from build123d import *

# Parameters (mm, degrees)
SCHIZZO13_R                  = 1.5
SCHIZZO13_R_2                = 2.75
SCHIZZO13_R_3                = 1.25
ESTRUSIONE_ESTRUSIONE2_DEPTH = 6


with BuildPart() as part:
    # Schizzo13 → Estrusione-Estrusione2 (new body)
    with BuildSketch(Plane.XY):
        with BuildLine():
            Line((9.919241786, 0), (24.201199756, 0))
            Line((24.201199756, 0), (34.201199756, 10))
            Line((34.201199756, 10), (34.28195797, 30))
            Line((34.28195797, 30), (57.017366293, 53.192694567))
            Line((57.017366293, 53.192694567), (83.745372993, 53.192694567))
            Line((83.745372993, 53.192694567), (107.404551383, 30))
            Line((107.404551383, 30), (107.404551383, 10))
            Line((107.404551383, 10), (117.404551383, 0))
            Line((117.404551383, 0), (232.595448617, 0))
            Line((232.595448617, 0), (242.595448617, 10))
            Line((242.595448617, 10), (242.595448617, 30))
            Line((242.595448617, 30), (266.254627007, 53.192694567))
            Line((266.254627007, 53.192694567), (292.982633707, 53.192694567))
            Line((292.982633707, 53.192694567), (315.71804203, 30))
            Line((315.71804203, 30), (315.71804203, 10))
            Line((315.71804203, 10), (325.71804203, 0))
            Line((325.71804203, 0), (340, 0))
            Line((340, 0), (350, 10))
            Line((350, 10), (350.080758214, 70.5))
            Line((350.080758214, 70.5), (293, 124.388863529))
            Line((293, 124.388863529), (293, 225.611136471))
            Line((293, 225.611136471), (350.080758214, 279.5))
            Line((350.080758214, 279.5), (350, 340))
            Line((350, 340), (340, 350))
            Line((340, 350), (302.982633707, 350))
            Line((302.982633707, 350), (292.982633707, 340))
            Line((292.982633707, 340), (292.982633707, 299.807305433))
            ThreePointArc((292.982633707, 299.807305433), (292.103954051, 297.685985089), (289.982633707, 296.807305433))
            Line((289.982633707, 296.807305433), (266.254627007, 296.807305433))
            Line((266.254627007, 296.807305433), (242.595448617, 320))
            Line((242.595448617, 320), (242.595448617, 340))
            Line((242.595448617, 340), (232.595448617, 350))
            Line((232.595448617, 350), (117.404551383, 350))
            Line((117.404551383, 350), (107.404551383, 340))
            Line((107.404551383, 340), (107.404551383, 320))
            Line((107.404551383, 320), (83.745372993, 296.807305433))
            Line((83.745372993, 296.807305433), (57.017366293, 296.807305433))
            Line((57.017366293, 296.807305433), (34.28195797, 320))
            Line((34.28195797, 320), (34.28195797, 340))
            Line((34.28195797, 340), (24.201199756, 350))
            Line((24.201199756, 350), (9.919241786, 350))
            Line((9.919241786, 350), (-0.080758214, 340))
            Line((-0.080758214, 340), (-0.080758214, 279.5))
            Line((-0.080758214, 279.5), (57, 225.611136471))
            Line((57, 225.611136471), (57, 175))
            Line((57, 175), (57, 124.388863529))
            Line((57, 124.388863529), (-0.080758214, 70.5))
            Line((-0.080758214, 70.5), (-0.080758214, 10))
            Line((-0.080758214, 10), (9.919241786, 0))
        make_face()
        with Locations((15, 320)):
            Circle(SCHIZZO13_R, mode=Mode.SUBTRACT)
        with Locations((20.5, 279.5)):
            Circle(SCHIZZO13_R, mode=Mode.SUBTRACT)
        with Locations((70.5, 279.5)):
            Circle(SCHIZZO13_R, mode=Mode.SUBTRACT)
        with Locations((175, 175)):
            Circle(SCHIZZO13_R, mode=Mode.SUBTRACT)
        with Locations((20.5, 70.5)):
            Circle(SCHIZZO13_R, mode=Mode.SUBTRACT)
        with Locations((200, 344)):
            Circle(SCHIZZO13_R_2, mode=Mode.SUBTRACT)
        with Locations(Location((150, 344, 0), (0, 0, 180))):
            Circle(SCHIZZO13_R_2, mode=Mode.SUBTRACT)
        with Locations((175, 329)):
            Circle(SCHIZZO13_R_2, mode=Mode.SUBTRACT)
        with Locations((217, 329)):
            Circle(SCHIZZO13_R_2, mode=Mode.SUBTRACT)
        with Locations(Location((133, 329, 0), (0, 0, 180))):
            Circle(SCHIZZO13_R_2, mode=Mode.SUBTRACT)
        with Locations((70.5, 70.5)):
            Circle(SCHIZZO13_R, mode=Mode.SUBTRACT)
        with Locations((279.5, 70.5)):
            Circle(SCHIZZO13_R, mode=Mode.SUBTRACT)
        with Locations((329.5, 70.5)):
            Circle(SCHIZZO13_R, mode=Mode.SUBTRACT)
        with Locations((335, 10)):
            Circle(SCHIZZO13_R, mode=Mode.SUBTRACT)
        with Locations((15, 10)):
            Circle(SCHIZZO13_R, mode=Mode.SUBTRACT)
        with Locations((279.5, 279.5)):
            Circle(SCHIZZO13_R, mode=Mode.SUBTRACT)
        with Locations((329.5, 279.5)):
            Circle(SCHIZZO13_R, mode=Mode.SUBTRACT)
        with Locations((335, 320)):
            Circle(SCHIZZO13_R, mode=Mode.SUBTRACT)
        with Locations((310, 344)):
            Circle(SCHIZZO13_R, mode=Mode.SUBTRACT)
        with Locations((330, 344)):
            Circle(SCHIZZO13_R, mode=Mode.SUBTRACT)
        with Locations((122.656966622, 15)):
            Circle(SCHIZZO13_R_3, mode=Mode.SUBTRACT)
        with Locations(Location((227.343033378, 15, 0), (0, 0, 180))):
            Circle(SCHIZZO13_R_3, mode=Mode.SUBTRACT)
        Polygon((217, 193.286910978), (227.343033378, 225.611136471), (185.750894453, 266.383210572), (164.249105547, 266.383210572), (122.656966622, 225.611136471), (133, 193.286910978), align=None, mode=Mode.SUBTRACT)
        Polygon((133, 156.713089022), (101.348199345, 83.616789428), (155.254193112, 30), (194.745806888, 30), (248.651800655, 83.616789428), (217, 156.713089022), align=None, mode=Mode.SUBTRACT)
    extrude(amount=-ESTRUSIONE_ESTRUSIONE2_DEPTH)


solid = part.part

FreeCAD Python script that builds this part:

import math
import FreeCAD as App
import Part
import Sketcher

V = App.Vector
Q = App.Units.Quantity

doc = App.newDocument("Part")
body = doc.addObject("PartDesign::Body", "Body")

sketch1 = body.newObject("Sketcher::SketchObject", "Sketch")
sketch1.AttachmentSupport = (doc.getObject("XY_Plane"), [""])
sketch1.MapMode = "FlatFace"
sketch1.addGeometry(Part.LineSegment(V(9.919242, 0, 0), V(24.2012, 0, 0)), False)
sketch1.addGeometry(Part.LineSegment(V(24.2012, 0, 0), V(34.2012, 10, 0)), False)
sketch1.addGeometry(Part.LineSegment(V(34.2012, 10, 0), V(34.281958, 30, 0)), False)
sketch1.addGeometry(Part.LineSegment(V(34.281958, 30, 0), V(57.017366, 53.192695, 0)), False)
sketch1.addGeometry(Part.LineSegment(V(57.017366, 53.192695, 0), V(83.745373, 53.192695, 0)), False)
sketch1.addGeometry(Part.LineSegment(V(83.745373, 53.192695, 0), V(107.404551, 30, 0)), False)
sketch1.addGeometry(Part.LineSegment(V(107.404551, 30, 0), V(107.404551, 10, 0)), False)
sketch1.addGeometry(Part.LineSegment(V(107.404551, 10, 0), V(117.404551, 0, 0)), False)
sketch1.addGeometry(Part.LineSegment(V(117.404551, 0, 0), V(232.595449, 0, 0)), False)
sketch1.addGeometry(Part.LineSegment(V(232.595449, 0, 0), V(242.595449, 10, 0)), False)
sketch1.addGeometry(Part.LineSegment(V(242.595449, 10, 0), V(242.595449, 30, 0)), False)
sketch1.addGeometry(Part.LineSegment(V(242.595449, 30, 0), V(266.254627, 53.192695, 0)), False)
sketch1.addGeometry(Part.LineSegment(V(266.254627, 53.192695, 0), V(292.982634, 53.192695, 0)), False)
sketch1.addGeometry(Part.LineSegment(V(292.982634, 53.192695, 0), V(315.718042, 30, 0)), False)
sketch1.addGeometry(Part.LineSegment(V(315.718042, 30, 0), V(315.718042, 10, 0)), False)
sketch1.addGeometry(Part.LineSegment(V(315.718042, 10, 0), V(325.718042, 0, 0)), False)
sketch1.addGeometry(Part.LineSegment(V(325.718042, 0, 0), V(340, 0, 0)), False)
sketch1.addGeometry(Part.LineSegment(V(340, 0, 0), V(350, 10, 0)), False)
sketch1.addGeometry(Part.LineSegment(V(350, 10, 0), V(350.080758, 70.5, 0)), False)
sketch1.addGeometry(Part.LineSegment(V(350.080758, 70.5, 0), V(293, 124.388864, 0)), False)
sketch1.addGeometry(Part.LineSegment(V(293, 124.388864, 0), V(293, 225.611136, 0)), False)
sketch1.addGeometry(Part.LineSegment(V(293, 225.611136, 0), V(350.080758, 279.5, 0)), False)
sketch1.addGeometry(Part.LineSegment(V(350.080758, 279.5, 0), V(350, 340, 0)), False)
sketch1.addGeometry(Part.LineSegment(V(350, 340, 0), V(340, 350, 0)), False)
sketch1.addGeometry(Part.LineSegment(V(340, 350, 0), V(302.982634, 350, 0)), False)
sketch1.addGeometry(Part.LineSegment(V(302.982634, 350, 0), V(292.982634, 340, 0)), False)
sketch1.addGeometry(Part.LineSegment(V(292.982634, 340, 0), V(292.982634, 299.807305, 0)), False)
sketch1.addGeometry(Part.ArcOfCircle(Part.Circle(V(289.982634, 299.807305, 0), V(0, 0, 1), 3), math.radians(-90), math.radians(0)), False)
sketch1.addGeometry(Part.LineSegment(V(289.982634, 296.807305, 0), V(266.254627, 296.807305, 0)), False)
sketch1.addGeometry(Part.LineSegment(V(266.254627, 296.807305, 0), V(242.595449, 320, 0)), False)
sketch1.addGeometry(Part.LineSegment(V(242.595449, 320, 0), V(242.595449, 340, 0)), False)
sketch1.addGeometry(Part.LineSegment(V(242.595449, 340, 0), V(232.595449, 350, 0)), False)
sketch1.addGeometry(Part.LineSegment(V(232.595449, 350, 0), V(117.404551, 350, 0)), False)
sketch1.addGeometry(Part.LineSegment(V(117.404551, 350, 0), V(107.404551, 340, 0)), False)
sketch1.addGeometry(Part.LineSegment(V(107.404551, 340, 0), V(107.404551, 320, 0)), False)
sketch1.addGeometry(Part.LineSegment(V(107.404551, 320, 0), V(83.745373, 296.807305, 0)), False)
sketch1.addGeometry(Part.LineSegment(V(83.745373, 296.807305, 0), V(57.017366, 296.807305, 0)), False)
sketch1.addGeometry(Part.LineSegment(V(57.017366, 296.807305, 0), V(34.281958, 320, 0)), False)
sketch1.addGeometry(Part.LineSegment(V(34.281958, 320, 0), V(34.281958, 340, 0)), False)
sketch1.addGeometry(Part.LineSegment(V(34.281958, 340, 0), V(24.2012, 350, 0)), False)
sketch1.addGeometry(Part.LineSegment(V(24.2012, 350, 0), V(9.919242, 350, 0)), False)
sketch1.addGeometry(Part.LineSegment(V(9.919242, 350, 0), V(-0.080758, 340, 0)), False)
sketch1.addGeometry(Part.LineSegment(V(-0.080758, 340, 0), V(-0.080758, 279.5, 0)), False)
sketch1.addGeometry(Part.LineSegment(V(-0.080758, 279.5, 0), V(57, 225.611136, 0)), False)
sketch1.addGeometry(Part.LineSegment(V(57, 225.611136, 0), V(57, 124.388864, 0)), False)
sketch1.addGeometry(Part.LineSegment(V(57, 124.388864, 0), V(-0.080758, 70.5, 0)), False)
sketch1.addGeometry(Part.LineSegment(V(-0.080758, 70.5, 0), V(-0.080758, 10, 0)), False)
sketch1.addGeometry(Part.LineSegment(V(-0.080758, 10, 0), V(9.919242, 0, 0)), False)
sketch1.addGeometry(Part.Circle(V(15, 10, 0), V(0, 0, 1), 1.5), False)
sketch1.addGeometry(Part.Circle(V(20.5, 70.5, 0), V(0, 0, 1), 1.5), False)
sketch1.addGeometry(Part.Circle(V(70.5, 70.5, 0), V(0, 0, 1), 1.5), False)
sketch1.addGeometry(Part.Circle(V(122.656967, 15, 0), V(0, 0, 1), 1.25), False)
sketch1.addGeometry(Part.Circle(V(227.343033, 15, 0), V(0, 0, 1), 1.25), False)
sketch1.addGeometry(Part.Circle(V(335, 10, 0), V(0, 0, 1), 1.5), False)
sketch1.addGeometry(Part.Circle(V(279.5, 70.5, 0), V(0, 0, 1), 1.5), False)
sketch1.addGeometry(Part.Circle(V(329.5, 70.5, 0), V(0, 0, 1), 1.5), False)
sketch1.addGeometry(Part.LineSegment(V(101.348199, 83.616789, 0), V(133, 156.713089, 0)), False)
sketch1.addGeometry(Part.LineSegment(V(133, 156.713089, 0), V(217, 156.713089, 0)), False)
sketch1.addGeometry(Part.LineSegment(V(217, 156.713089, 0), V(248.651801, 83.616789, 0)), False)
sketch1.addGeometry(Part.LineSegment(V(248.651801, 83.616789, 0), V(194.745807, 30, 0)), False)
sketch1.addGeometry(Part.LineSegment(V(194.745807, 30, 0), V(155.254193, 30, 0)), False)
sketch1.addGeometry(Part.LineSegment(V(155.254193, 30, 0), V(101.348199, 83.616789, 0)), False)
sketch1.addGeometry(Part.Circle(V(175, 175, 0), V(0, 0, 1), 1.5), False)
sketch1.addGeometry(Part.Circle(V(20.5, 279.5, 0), V(0, 0, 1), 1.5), False)
sketch1.addGeometry(Part.Circle(V(70.5, 279.5, 0), V(0, 0, 1), 1.5), False)
sketch1.addGeometry(Part.Circle(V(15, 320, 0), V(0, 0, 1), 1.5), False)
sketch1.addGeometry(Part.Circle(V(133, 329, 0), V(0, 0, 1), 2.75), False)
sketch1.addGeometry(Part.Circle(V(150, 344, 0), V(0, 0, 1), 2.75), False)
sketch1.addGeometry(Part.LineSegment(V(227.343033, 225.611136, 0), V(217, 193.286911, 0)), False)
sketch1.addGeometry(Part.LineSegment(V(217, 193.286911, 0), V(133, 193.286911, 0)), False)
sketch1.addGeometry(Part.LineSegment(V(133, 193.286911, 0), V(122.656967, 225.611136, 0)), False)
sketch1.addGeometry(Part.LineSegment(V(122.656967, 225.611136, 0), V(164.249106, 266.383211, 0)), False)
sketch1.addGeometry(Part.LineSegment(V(164.249106, 266.383211, 0), V(185.750894, 266.383211, 0)), False)
sketch1.addGeometry(Part.LineSegment(V(185.750894, 266.383211, 0), V(227.343033, 225.611136, 0)), False)
sketch1.addGeometry(Part.Circle(V(175, 329, 0), V(0, 0, 1), 2.75), False)
sketch1.addGeometry(Part.Circle(V(200, 344, 0), V(0, 0, 1), 2.75), False)
sketch1.addGeometry(Part.Circle(V(217, 329, 0), V(0, 0, 1), 2.75), False)
sketch1.addGeometry(Part.Circle(V(279.5, 279.5, 0), V(0, 0, 1), 1.5), False)
sketch1.addGeometry(Part.Circle(V(329.5, 279.5, 0), V(0, 0, 1), 1.5), False)
sketch1.addGeometry(Part.Circle(V(335, 320, 0), V(0, 0, 1), 1.5), False)
sketch1.addGeometry(Part.Circle(V(310, 344, 0), V(0, 0, 1), 1.5), False)
sketch1.addGeometry(Part.Circle(V(330, 344, 0), V(0, 0, 1), 1.5), False)
sketch1.addConstraint(Sketcher.Constraint("Coincident", 0, 2, 1, 1))
sketch1.addConstraint(Sketcher.Constraint("Coincident", 1, 2, 2, 1))
sketch1.addConstraint(Sketcher.Constraint("Coincident", 2, 2, 3, 1))
sketch1.addConstraint(Sketcher.Constraint("Coincident", 3, 2, 4, 1))
sketch1.addConstraint(Sketcher.Constraint("Coincident", 4, 2, 5, 1))
sketch1.addConstraint(Sketcher.Constraint("Coincident", 5, 2, 6, 1))
sketch1.addConstraint(Sketcher.Constraint("Coincident", 6, 2, 7, 1))
sketch1.addConstraint(Sketcher.Constraint("Coincident", 7, 2, 8, 1))
sketch1.addConstraint(Sketcher.Constraint("Coincident", 8, 2, 9, 1))
sketch1.addConstraint(Sketcher.Constraint("Coincident", 9, 2, 10, 1))
sketch1.addConstraint(Sketcher.Constraint("Coincident", 10, 2, 11, 1))
sketch1.addConstraint(Sketcher.Constraint("Coincident", 11, 2, 12, 1))
sketch1.addConstraint(Sketcher.Constraint("Coincident", 12, 2, 13, 1))
sketch1.addConstraint(Sketcher.Constraint("Coincident", 13, 2, 14, 1))
sketch1.addConstraint(Sketcher.Constraint("Coincident", 14, 2, 15, 1))
sketch1.addConstraint(Sketcher.Constraint("Coincident", 15, 2, 16, 1))
sketch1.addConstraint(Sketcher.Constraint("Coincident", 16, 2, 17, 1))
sketch1.addConstraint(Sketcher.Constraint("Coincident", 17, 2, 18, 1))
sketch1.addConstraint(Sketcher.Constraint("Coincident", 18, 2, 19, 1))
sketch1.addConstraint(Sketcher.Constraint("Coincident", 19, 2, 20, 1))
sketch1.addConstraint(Sketcher.Constraint("Coincident", 20, 2, 21, 1))
sketch1.addConstraint(Sketcher.Constraint("Coincident", 21, 2, 22, 1))
sketch1.addConstraint(Sketcher.Constraint("Coincident", 22, 2, 23, 1))
sketch1.addConstraint(Sketcher.Constraint("Coincident", 23, 2, 24, 1))
sketch1.addConstraint(Sketcher.Constraint("Coincident", 24, 2, 25, 1))
sketch1.addConstraint(Sketcher.Constraint("Coincident", 25, 2, 26, 1))
sketch1.addConstraint(Sketcher.Constraint("Tangent", 26, 2, 27, 2))
sketch1.addConstraint(Sketcher.Constraint("Tangent", 27, 1, 28, 1))
sketch1.addConstraint(Sketcher.Constraint("Coincident", 28, 2, 29, 1))
sketch1.addConstraint(Sketcher.Constraint("Coincident", 29, 2, 30, 1))
sketch1.addConstraint(Sketcher.Constraint("Coincident", 30, 2, 31, 1))
sketch1.addConstraint(Sketcher.Constraint("Coincident", 31, 2, 32, 1))
sketch1.addConstraint(Sketcher.Constraint("Coincident", 32, 2, 33, 1))
sketch1.addConstraint(Sketcher.Constraint("Coincident", 33, 2, 34, 1))
sketch1.addConstraint(Sketcher.Constraint("Coincident", 34, 2, 35, 1))
sketch1.addConstraint(Sketcher.Constraint("Coincident", 35, 2, 36, 1))
sketch1.addConstraint(Sketcher.Constraint("Coincident", 36, 2, 37, 1))
sketch1.addConstraint(Sketcher.Constraint("Coincident", 37, 2, 38, 1))
sketch1.addConstraint(Sketcher.Constraint("Coincident", 38, 2, 39, 1))
sketch1.addConstraint(Sketcher.Constraint("Coincident", 39, 2, 40, 1))
sketch1.addConstraint(Sketcher.Constraint("Coincident", 40, 2, 41, 1))
sketch1.addConstraint(Sketcher.Constraint("Coincident", 41, 2, 42, 1))
sketch1.addConstraint(Sketcher.Constraint("Coincident", 42, 2, 43, 1))
sketch1.addConstraint(Sketcher.Constraint("Coincident", 43, 2, 44, 1))
sketch1.addConstraint(Sketcher.Constraint("Coincident", 44, 2, 45, 1))
sketch1.addConstraint(Sketcher.Constraint("Coincident", 45, 2, 46, 1))
sketch1.addConstraint(Sketcher.Constraint("Coincident", 46, 2, 47, 1))
sketch1.addConstraint(Sketcher.Constraint("Coincident", 47, 2, 0, 1))
sketch1.addConstraint(Sketcher.Constraint("Coincident", 56, 2, 57, 1))
sketch1.addConstraint(Sketcher.Constraint("Coincident", 57, 2, 58, 1))
sketch1.addConstraint(Sketcher.Constraint("Coincident", 58, 2, 59, 1))
sketch1.addConstraint(Sketcher.Constraint("Coincident", 59, 2, 60, 1))
sketch1.addConstraint(Sketcher.Constraint("Coincident", 60, 2, 61, 1))
sketch1.addConstraint(Sketcher.Constraint("Coincident", 61, 2, 56, 1))
sketch1.addConstraint(Sketcher.Constraint("Coincident", 68, 2, 69, 1))
sketch1.addConstraint(Sketcher.Constraint("Coincident", 69, 2, 70, 1))
sketch1.addConstraint(Sketcher.Constraint("Coincident", 70, 2, 71, 1))
sketch1.addConstraint(Sketcher.Constraint("Coincident", 71, 2, 72, 1))
sketch1.addConstraint(Sketcher.Constraint("Coincident", 72, 2, 73, 1))
sketch1.addConstraint(Sketcher.Constraint("Coincident", 73, 2, 68, 1))
sketch1.addConstraint(Sketcher.Constraint("Horizontal", 0))
sketch1.addConstraint(Sketcher.Constraint("Horizontal", 4))
sketch1.addConstraint(Sketcher.Constraint("Vertical", 6))
sketch1.addConstraint(Sketcher.Constraint("Horizontal", 8))
sketch1.addConstraint(Sketcher.Constraint("Vertical", 10))
sketch1.addConstraint(Sketcher.Constraint("Horizontal", 12))
sketch1.addConstraint(Sketcher.Constraint("Vertical", 14))
sketch1.addConstraint(Sketcher.Constraint("Horizontal", 16))
sketch1.addConstraint(Sketcher.Constraint("Vertical", 20))
sketch1.addConstraint(Sketcher.Constraint("Horizontal", 24))
sketch1.addConstraint(Sketcher.Constraint("Vertical", 26))
sketch1.addConstraint(Sketcher.Constraint("Horizontal", 28))
sketch1.addConstraint(Sketcher.Constraint("Vertical", 30))
sketch1.addConstraint(Sketcher.Constraint("Horizontal", 32))
sketch1.addConstraint(Sketcher.Constraint("Vertical", 34))
sketch1.addConstraint(Sketcher.Constraint("Horizontal", 36))
sketch1.addConstraint(Sketcher.Constraint("Vertical", 38))
sketch1.addConstraint(Sketcher.Constraint("Horizontal", 40))
sketch1.addConstraint(Sketcher.Constraint("Vertical", 42))
sketch1.addConstraint(Sketcher.Constraint("Vertical", 44))
sketch1.addConstraint(Sketcher.Constraint("Vertical", 46))
sketch1.addConstraint(Sketcher.Constraint("Horizontal", 57))
sketch1.addConstraint(Sketcher.Constraint("Horizontal", 60))
sketch1.addConstraint(Sketcher.Constraint("Horizontal", 69))
sketch1.addConstraint(Sketcher.Constraint("Horizontal", 72))
sketch1.addConstraint(Sketcher.Constraint("Equal", 48, 49))
sketch1.addConstraint(Sketcher.Constraint("Equal", 49, 50))
sketch1.addConstraint(Sketcher.Constraint("Equal", 51, 52))
sketch1.addConstraint(Sketcher.Constraint("Equal", 50, 53))
sketch1.addConstraint(Sketcher.Constraint("Equal", 53, 54))
sketch1.addConstraint(Sketcher.Constraint("Equal", 54, 55))
sketch1.addConstraint(Sketcher.Constraint("Equal", 55, 62))
sketch1.addConstraint(Sketcher.Constraint("Equal", 62, 63))
sketch1.addConstraint(Sketcher.Constraint("Equal", 63, 64))
sketch1.addConstraint(Sketcher.Constraint("Equal", 64, 65))
sketch1.addConstraint(Sketcher.Constraint("Equal", 66, 67))
sketch1.addConstraint(Sketcher.Constraint("Equal", 67, 74))
sketch1.addConstraint(Sketcher.Constraint("Equal", 74, 75))
sketch1.addConstraint(Sketcher.Constraint("Equal", 75, 76))
sketch1.addConstraint(Sketcher.Constraint("Equal", 65, 77))
sketch1.addConstraint(Sketcher.Constraint("Equal", 77, 78))
sketch1.addConstraint(Sketcher.Constraint("Equal", 78, 79))
sketch1.addConstraint(Sketcher.Constraint("Equal", 79, 80))
sketch1.addConstraint(Sketcher.Constraint("Equal", 80, 81))
sketch1.addConstraint(Sketcher.Constraint("PointOnObject", 0, 2, -1))
sketch1.addConstraint(Sketcher.Constraint("PointOnObject", 7, 2, -1))
sketch1.addConstraint(Sketcher.Constraint("PointOnObject", 15, 2, -1))
sketch1.addConstraint(Sketcher.Constraint("Perpendicular", 3, 5))
sketch1.addConstraint(Sketcher.Constraint("Perpendicular", 1, 7))
sketch1.addConstraint(Sketcher.Constraint("Perpendicular", 7, 9))
sketch1.addConstraint(Sketcher.Constraint("Perpendicular", 11, 13))
sketch1.addConstraint(Sketcher.Constraint("Perpendicular", 9, 15))
sketch1.addConstraint(Sketcher.Constraint("Perpendicular", 15, 17))
sketch1.addConstraint(Sketcher.Constraint("Perpendicular", 17, 23))
sketch1.addConstraint(Sketcher.Constraint("Perpendicular", 23, 25))
sketch1.addConstraint(Sketcher.Constraint("Parallel", 5, 29))
sketch1.addConstraint(Sketcher.Constraint("Perpendicular", 25, 31))
sketch1.addConstraint(Sketcher.Constraint("Perpendicular", 31, 33))
sketch1.addConstraint(Sketcher.Constraint("Perpendicular", 13, 35))
sketch1.addConstraint(Sketcher.Constraint("Perpendicular", 35, 37))
sketch1.addConstraint(Sketcher.Constraint("Parallel", 33, 41))
sketch1.addConstraint(Sketcher.Constraint("Parallel", 19, 43))
sketch1.addConstraint(Sketcher.Constraint("Parallel", 21, 45))
sketch1.addConstraint(Sketcher.Constraint("Perpendicular", 41, 47))
sketch1.addConstraint(Sketcher.Constraint("Perpendicular", 37, 71))
sketch1.addConstraint(Sketcher.Constraint("Parallel", 29, 73))
sketch1.addConstraint(Sketcher.Constraint("Horizontal", 49, 3, 50, 3))
sketch1.addConstraint(Sketcher.Constraint("Horizontal", 51, 3, 52, 3))
sketch1.addConstraint(Sketcher.Constraint("Horizontal", 48, 3, 53, 3))
sketch1.addConstraint(Sketcher.Constraint("Horizontal", 50, 3, 54, 3))
sketch1.addConstraint(Sketcher.Constraint("Horizontal", 54, 3, 55, 3))
sketch1.addConstraint(Sketcher.Constraint("Horizontal", 63, 3, 64, 3))
sketch1.addConstraint(Sketcher.Constraint("Horizontal", 66, 3, 74, 3))
sketch1.addConstraint(Sketcher.Constraint("Horizontal", 67, 3, 75, 3))
sketch1.addConstraint(Sketcher.Constraint("Horizontal", 74, 3, 76, 3))
sketch1.addConstraint(Sketcher.Constraint("Horizontal", 64, 3, 77, 3))
sketch1.addConstraint(Sketcher.Constraint("Horizontal", 77, 3, 78, 3))
sketch1.addConstraint(Sketcher.Constraint("Horizontal", 65, 3, 79, 3))
sketch1.addConstraint(Sketcher.Constraint("Horizontal", 75, 3, 80, 3))
sketch1.addConstraint(Sketcher.Constraint("Horizontal", 80, 3, 81, 3))
sketch1.addConstraint(Sketcher.Constraint("Horizontal", 53, 3, 1, 2))
sketch1.addConstraint(Sketcher.Constraint("Horizontal", 2, 2, 5, 2))
sketch1.addConstraint(Sketcher.Constraint("Horizontal", 1, 2, 6, 2))
sketch1.addConstraint(Sketcher.Constraint("Horizontal", 6, 2, 9, 2))
sketch1.addConstraint(Sketcher.Constraint("Horizontal", 5, 2, 10, 2))
sketch1.addConstraint(Sketcher.Constraint("Horizontal", 4, 2, 11, 2))
sketch1.addConstraint(Sketcher.Constraint("Horizontal", 10, 2, 13, 2))
sketch1.addConstraint(Sketcher.Constraint("Horizontal", 9, 2, 14, 2))
sketch1.addConstraint(Sketcher.Constraint("Horizontal", 14, 2, 17, 2))
sketch1.addConstraint(Sketcher.Constraint("Horizontal", 55, 3, 18, 2))
sketch1.addConstraint(Sketcher.Constraint("Horizontal", 78, 3, 21, 2))
sketch1.addConstraint(Sketcher.Constraint("Horizontal", 22, 2, 25, 2))
sketch1.addConstraint(Sketcher.Constraint("Horizontal", 79, 3, 29, 2))
sketch1.addConstraint(Sketcher.Constraint("Horizontal", 25, 2, 30, 2))
sketch1.addConstraint(Sketcher.Constraint("Horizontal", 24, 2, 31, 2))
sketch1.addConstraint(Sketcher.Constraint("Horizontal", 30, 2, 33, 2))
sketch1.addConstraint(Sketcher.Constraint("Horizontal", 29, 2, 34, 2))
sketch1.addConstraint(Sketcher.Constraint("Horizontal", 28, 2, 35, 2))
sketch1.addConstraint(Sketcher.Constraint("Horizontal", 34, 2, 37, 2))
sketch1.addConstraint(Sketcher.Constraint("Horizontal", 33, 2, 38, 2))
sketch1.addConstraint(Sketcher.Constraint("Horizontal", 32, 2, 39, 2))
sketch1.addConstraint(Sketcher.Constraint("Horizontal", 38, 2, 41, 2))
sketch1.addConstraint(Sketcher.Constraint("Horizontal", 21, 2, 42, 2))
sketch1.addConstraint(Sketcher.Constraint("Horizontal", 20, 2, 43, 2))
sketch1.addConstraint(Sketcher.Constraint("Horizontal", 19, 2, 44, 2))
sketch1.addConstraint(Sketcher.Constraint("Horizontal", 18, 2, 45, 2))
sketch1.addConstraint(Sketcher.Constraint("Horizontal", 17, 2, 46, 2))
sketch1.addConstraint(Sketcher.Constraint("Horizontal", 13, 2, 59, 2))
sketch1.addConstraint(Sketcher.Constraint("Horizontal", 58, 2, 61, 2))
sketch1.addConstraint(Sketcher.Constraint("Horizontal", 43, 2, 70, 2))
sketch1.addConstraint(Sketcher.Constraint("Horizontal", 70, 2, 73, 2))
sketch1.addConstraint(Sketcher.Constraint("Vertical", 49, 3, 63, 3))
sketch1.addConstraint(Sketcher.Constraint("Vertical", 50, 3, 64, 3))
sketch1.addConstraint(Sketcher.Constraint("Vertical", 48, 3, 65, 3))
sketch1.addConstraint(Sketcher.Constraint("Vertical", 62, 3, 74, 3))
sketch1.addConstraint(Sketcher.Constraint("Vertical", 54, 3, 77, 3))
sketch1.addConstraint(Sketcher.Constraint("Vertical", 55, 3, 78, 3))
sketch1.addConstraint(Sketcher.Constraint("Vertical", 53, 3, 79, 3))
sketch1.addConstraint(Sketcher.Constraint("Vertical", 18, 2, 21, 2))
sketch1.addConstraint(Sketcher.Constraint("Vertical", 17, 2, 22, 2))
sketch1.addConstraint(Sketcher.Constraint("Vertical", 16, 2, 23, 2))
sketch1.addConstraint(Sketcher.Constraint("Vertical", 12, 2, 25, 2))
sketch1.addConstraint(Sketcher.Constraint("Vertical", 11, 2, 28, 2))
sketch1.addConstraint(Sketcher.Constraint("Vertical", 10, 2, 29, 2))
sketch1.addConstraint(Sketcher.Constraint("Vertical", 7, 2, 32, 2))
sketch1.addConstraint(Sketcher.Constraint("Vertical", 6, 2, 33, 2))
sketch1.addConstraint(Sketcher.Constraint("Vertical", 4, 2, 35, 2))
sketch1.addConstraint(Sketcher.Constraint("Vertical", 3, 2, 36, 2))
sketch1.addConstraint(Sketcher.Constraint("Vertical", 0, 2, 39, 2))
sketch1.addConstraint(Sketcher.Constraint("Vertical", 42, 2, 45, 2))
sketch1.addConstraint(Sketcher.Constraint("Vertical", 66, 3, 56, 2))
sketch1.addConstraint(Sketcher.Constraint("Vertical", 76, 3, 57, 2))
sketch1.addConstraint(Sketcher.Constraint("Vertical", 57, 2, 68, 2))
sketch1.addConstraint(Sketcher.Constraint("Vertical", 56, 2, 69, 2))
sketch1.addConstraint(Sketcher.Constraint("Vertical", 51, 3, 70, 2))
sketch1.addConstraint(Sketcher.Constraint("Vertical", 52, 3, 73, 2))
sketch1.addConstraint(Sketcher.Constraint("Equal", 4, 12))
sketch1.addConstraint(Sketcher.Constraint("Equal", 0, 16))
sketch1.addConstraint(Sketcher.Constraint("Equal", 14, 30))
sketch1.addConstraint(Sketcher.Constraint("Equal", 42, 46))
sketch1.addConstraint(Sketcher.Constraint("Equal", 56, 58))
sketch1.addConstraint(Sketcher.Constraint("Equal", 59, 61))
sketch1.addConstraint(Sketcher.Constraint("Equal", 68, 70))
sketch1.addConstraint(Sketcher.Constraint("Diameter", 48, Q("3 mm")))
sketch1.addConstraint(Sketcher.Constraint("Radius", 27, Q("3 mm")))
sketch1.addConstraint(Sketcher.Constraint("Diameter", 51, Q("2.5 mm")))
sketch1.addConstraint(Sketcher.Constraint("Diameter", 66, Q("5.5 mm")))
sketch1.addConstraint(Sketcher.Constraint("DistanceX", 57, 1, 57, 2, Q("84 mm")))
sketch1.addConstraint(Sketcher.Constraint("DistanceY", 6, 2, 6, 1, Q("20 mm")))
sketch1.addConstraint(Sketcher.Constraint("DistanceY", 42, 2, 42, 1, Q("60.5 mm")))
sketch1.addConstraint(Sketcher.Constraint("DistanceX", -1, 1, 48, 3, Q("15 mm")))
sketch1.addConstraint(Sketcher.Constraint("DistanceY", -1, 1, 48, 3, Q("10 mm")))
sketch1.addConstraint(Sketcher.Constraint("DistanceY", -1, 1, 51, 3, Q("15 mm")))
sketch1.addConstraint(Sketcher.Constraint("DistanceX", -1, 1, 53, 3, Q("335 mm")))
sketch1.addConstraint(Sketcher.Constraint("DistanceX", -1, 1, 62, 3, Q("175 mm")))
sketch1.addConstraint(Sketcher.Constraint("DistanceY", -1, 1, 62, 3, Q("175 mm")))
sketch1.addConstraint(Sketcher.Constraint("DistanceY", -1, 1, 65, 3, Q("320 mm")))
sketch1.addConstraint(Sketcher.Constraint("DistanceX", -1, 1, 66, 3, Q("133 mm")))
sketch1.addConstraint(Sketcher.Constraint("DistanceY", -1, 1, 66, 3, Q("329 mm")))
sketch1.addConstraint(Sketcher.Constraint("DistanceX", -1, 1, 67, 3, Q("150 mm")))
sketch1.addConstraint(Sketcher.Constraint("DistanceY", -1, 1, 67, 3, Q("344 mm")))
sketch1.addConstraint(Sketcher.Constraint("DistanceX", -1, 1, 75, 3, Q("200 mm")))
sketch1.addConstraint(Sketcher.Constraint("DistanceX", -1, 1, 80, 3, Q("310 mm")))
sketch1.addConstraint(Sketcher.Constraint("DistanceX", -1, 1, 81, 3, Q("330 mm")))
sketch1.addConstraint(Sketcher.Constraint("DistanceX", -1, 1, 16, 2, Q("340 mm")))
sketch1.addConstraint(Sketcher.Constraint("DistanceX", -1, 1, 19, 2, Q("293 mm")))
sketch1.addConstraint(Sketcher.Constraint("DistanceX", -1, 1, 43, 2, Q("57 mm")))
sketch1.addConstraint(Sketcher.Constraint("DistanceX", -1, 1, 49, 3, Q("20.5 mm")))
sketch1.addConstraint(Sketcher.Constraint("DistanceX", -1, 1, 50, 3, Q("70.5 mm")))
sketch1.addConstraint(Sketcher.Constraint("DistanceX", -1, 1, 54, 3, Q("279.5 mm")))
sketch1.addConstraint(Sketcher.Constraint("DistanceX", -1, 1, 55, 3, Q("329.5 mm")))
sketch1.addConstraint(Sketcher.Constraint("DistanceX", 72, 1, 72, 2, Q("21.501789 mm")))
sketch1.addConstraint(Sketcher.Constraint("DistanceX", -1, 1, 0, 2, Q("24.2012 mm")))
sketch1.addConstraint(Sketcher.Constraint("DistanceX", -1, 1, 58, 2, Q("248.651801 mm")))
sketch1.addConstraint(Sketcher.Constraint("Distance", 5, Q("33.130919 mm")))
sketch1.addConstraint(Sketcher.Constraint("Distance", 68, Q("33.938678 mm")))
sketch1.addConstraint(Sketcher.Constraint("Distance", 71, Q("58.24318 mm")))
sketch1.addConstraint(Sketcher.Constraint("DistanceX", 0, 1, 0, 2, Q("14.281958 mm")))
sketch1.addConstraint(Sketcher.Constraint("DistanceX", 4, 1, 4, 2, Q("26.728007 mm")))
sketch1.addConstraint(Sketcher.Constraint("DistanceX", 8, 1, 8, 2, Q("115.190897 mm")))
sketch1.addConstraint(Sketcher.Constraint("DistanceX", 24, 2, 24, 1, Q("37.017366 mm")))
sketch1.addConstraint(Sketcher.Constraint("DistanceX", 60, 2, 60, 1, Q("39.491614 mm")))
sketch1.addConstraint(Sketcher.Constraint("DistanceY", 20, 1, 20, 2, Q("101.222273 mm")))
sketch1.addConstraint(Sketcher.Constraint("DistanceY", -1, 1, 56, 2, Q("156.713089 mm")))
sketch1.addConstraint(Sketcher.Constraint("DistanceY", -1, 1, 58, 2, Q("83.616789 mm")))
pad1 = body.newObject("PartDesign::Pad", "Pad")
pad1.Profile = sketch1
pad1.Length = 6
pad1.Reversed = True

doc.recompute()
